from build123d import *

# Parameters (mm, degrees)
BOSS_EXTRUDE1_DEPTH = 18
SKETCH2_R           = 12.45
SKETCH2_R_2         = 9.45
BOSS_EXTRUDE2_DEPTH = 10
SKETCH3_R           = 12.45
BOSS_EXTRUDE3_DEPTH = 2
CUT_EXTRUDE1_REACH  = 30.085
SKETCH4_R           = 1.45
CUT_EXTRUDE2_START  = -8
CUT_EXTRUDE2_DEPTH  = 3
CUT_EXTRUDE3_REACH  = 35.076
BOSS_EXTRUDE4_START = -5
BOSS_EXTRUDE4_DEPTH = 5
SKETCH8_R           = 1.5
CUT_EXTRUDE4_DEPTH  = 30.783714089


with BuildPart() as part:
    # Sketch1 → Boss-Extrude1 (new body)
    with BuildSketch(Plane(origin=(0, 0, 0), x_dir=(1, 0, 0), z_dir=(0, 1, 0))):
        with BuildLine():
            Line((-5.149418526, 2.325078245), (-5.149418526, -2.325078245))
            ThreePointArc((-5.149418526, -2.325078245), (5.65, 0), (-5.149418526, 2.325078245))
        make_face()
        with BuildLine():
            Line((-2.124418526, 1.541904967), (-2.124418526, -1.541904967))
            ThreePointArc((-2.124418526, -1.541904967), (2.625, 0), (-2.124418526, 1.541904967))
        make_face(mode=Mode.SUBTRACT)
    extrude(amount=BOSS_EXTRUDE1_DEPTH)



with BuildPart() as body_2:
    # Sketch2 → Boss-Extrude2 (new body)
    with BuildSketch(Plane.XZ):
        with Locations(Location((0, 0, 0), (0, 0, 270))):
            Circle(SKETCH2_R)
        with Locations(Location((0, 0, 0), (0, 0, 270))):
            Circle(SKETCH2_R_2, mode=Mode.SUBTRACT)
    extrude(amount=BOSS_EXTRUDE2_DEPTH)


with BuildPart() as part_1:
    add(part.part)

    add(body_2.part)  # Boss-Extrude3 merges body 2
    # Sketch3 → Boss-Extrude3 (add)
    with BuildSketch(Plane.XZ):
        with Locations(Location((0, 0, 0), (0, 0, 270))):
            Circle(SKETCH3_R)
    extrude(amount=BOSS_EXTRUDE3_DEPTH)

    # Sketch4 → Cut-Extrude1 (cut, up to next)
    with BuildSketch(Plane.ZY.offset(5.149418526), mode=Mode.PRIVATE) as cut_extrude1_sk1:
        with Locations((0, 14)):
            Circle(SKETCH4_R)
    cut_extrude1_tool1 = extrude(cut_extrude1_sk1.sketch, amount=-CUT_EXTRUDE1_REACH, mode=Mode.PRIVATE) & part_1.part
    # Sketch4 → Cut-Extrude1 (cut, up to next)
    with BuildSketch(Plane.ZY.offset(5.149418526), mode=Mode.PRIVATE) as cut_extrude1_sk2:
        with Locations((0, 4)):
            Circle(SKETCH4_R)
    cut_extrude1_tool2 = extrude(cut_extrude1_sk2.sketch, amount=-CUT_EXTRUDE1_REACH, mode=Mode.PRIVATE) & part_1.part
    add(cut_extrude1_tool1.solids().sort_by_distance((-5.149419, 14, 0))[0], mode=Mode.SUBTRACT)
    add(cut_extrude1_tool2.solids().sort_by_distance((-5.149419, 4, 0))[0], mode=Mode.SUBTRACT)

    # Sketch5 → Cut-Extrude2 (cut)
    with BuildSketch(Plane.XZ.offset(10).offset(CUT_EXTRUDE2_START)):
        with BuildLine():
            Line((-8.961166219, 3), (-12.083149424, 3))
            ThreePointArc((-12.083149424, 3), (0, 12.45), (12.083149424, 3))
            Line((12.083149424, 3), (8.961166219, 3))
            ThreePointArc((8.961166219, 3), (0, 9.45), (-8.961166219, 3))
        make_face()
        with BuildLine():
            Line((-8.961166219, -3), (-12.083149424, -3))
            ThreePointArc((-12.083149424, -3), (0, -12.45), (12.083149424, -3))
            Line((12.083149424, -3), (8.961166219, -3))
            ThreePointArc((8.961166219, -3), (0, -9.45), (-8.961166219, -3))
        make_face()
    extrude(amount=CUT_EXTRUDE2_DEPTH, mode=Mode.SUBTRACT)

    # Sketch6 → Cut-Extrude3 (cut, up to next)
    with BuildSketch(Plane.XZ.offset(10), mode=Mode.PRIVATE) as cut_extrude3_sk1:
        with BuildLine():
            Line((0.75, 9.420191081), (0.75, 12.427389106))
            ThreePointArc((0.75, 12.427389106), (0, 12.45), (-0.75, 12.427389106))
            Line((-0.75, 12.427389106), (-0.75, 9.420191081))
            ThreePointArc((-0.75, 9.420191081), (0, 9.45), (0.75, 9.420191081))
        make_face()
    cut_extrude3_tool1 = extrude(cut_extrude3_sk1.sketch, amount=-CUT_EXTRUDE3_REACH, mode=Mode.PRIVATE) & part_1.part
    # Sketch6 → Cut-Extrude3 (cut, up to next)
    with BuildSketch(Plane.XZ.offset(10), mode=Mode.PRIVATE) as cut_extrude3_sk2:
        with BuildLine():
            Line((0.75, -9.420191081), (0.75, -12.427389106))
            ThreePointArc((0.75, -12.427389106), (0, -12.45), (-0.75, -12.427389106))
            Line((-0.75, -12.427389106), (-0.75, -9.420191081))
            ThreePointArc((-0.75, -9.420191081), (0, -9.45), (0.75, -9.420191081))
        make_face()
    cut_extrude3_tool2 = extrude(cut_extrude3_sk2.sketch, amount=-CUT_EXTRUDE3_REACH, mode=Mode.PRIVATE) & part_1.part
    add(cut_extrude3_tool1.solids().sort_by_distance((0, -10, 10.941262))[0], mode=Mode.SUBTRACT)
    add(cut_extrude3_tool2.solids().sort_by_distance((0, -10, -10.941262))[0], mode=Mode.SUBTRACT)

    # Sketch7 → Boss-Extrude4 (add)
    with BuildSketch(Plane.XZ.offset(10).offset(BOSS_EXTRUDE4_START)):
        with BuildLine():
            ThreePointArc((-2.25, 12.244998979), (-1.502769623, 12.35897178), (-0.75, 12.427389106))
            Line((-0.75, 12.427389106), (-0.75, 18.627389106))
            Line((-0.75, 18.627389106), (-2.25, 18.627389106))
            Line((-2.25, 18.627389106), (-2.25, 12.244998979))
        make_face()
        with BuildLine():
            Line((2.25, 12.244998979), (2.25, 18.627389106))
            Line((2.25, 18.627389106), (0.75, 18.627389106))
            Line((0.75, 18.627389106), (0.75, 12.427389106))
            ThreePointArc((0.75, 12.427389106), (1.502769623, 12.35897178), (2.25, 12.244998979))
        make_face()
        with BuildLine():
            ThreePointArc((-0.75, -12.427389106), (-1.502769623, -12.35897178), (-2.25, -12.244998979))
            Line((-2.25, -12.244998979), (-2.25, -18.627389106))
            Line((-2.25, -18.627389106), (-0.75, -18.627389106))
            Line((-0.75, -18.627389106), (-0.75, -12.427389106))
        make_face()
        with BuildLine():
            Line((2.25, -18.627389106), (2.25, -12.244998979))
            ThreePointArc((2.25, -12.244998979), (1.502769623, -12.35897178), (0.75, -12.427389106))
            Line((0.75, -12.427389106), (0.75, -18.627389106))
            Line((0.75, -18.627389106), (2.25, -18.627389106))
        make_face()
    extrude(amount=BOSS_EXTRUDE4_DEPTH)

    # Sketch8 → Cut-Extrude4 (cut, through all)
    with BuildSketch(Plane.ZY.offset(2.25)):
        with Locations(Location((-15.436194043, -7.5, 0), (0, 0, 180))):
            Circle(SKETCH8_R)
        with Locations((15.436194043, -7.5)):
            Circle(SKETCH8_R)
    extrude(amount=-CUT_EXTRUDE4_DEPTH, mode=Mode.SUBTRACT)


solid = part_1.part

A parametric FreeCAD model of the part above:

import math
import FreeCAD as App
import Part
import Sketcher
from FreeCAD import Vector
Q = App.Units.Quantity

doc = App.newDocument("Part")
body = doc.addObject("PartDesign::Body", "Body")

sketch1 = body.newObject("Sketcher::SketchObject", "Sketch")
sketch1.AttachmentSupport = (doc.getObject("XZ_Plane"), [""])
sketch1.MapMode = "FlatFace"
sketch1.addGeometry(Part.LineSegment(Vector(-5.1, -2.3, 0), Vector(-5.1, 2.3, 0)), False)
sketch1.addGeometry(Part.ArcOfCircle(Part.Circle(Vector(0, 0, 0), Vector(0, 0, 1), 5.7), math.radians(-156), math.radians(156)), False)
sketch1.addGeometry(Part.LineSegment(Vector(-2.1, 1.5, 0), Vector(-2.1, -1.5, 0)), False)
sketch1.addGeometry(Part.ArcOfCircle(Part.Circle(Vector(0, 0, 0), Vector(0, 0, 1), 2.6), math.radians(-144), math.radians(144)), False)
sketch1.addConstraint(Sketcher.Constraint("Coincident", 0, 1, 1, 1))
sketch1.addConstraint(Sketcher.Constraint("Coincident", 1, 2, 0, 2))
sketch1.addConstraint(Sketcher.Constraint("Coincident", 2, 1, 3, 2))
sketch1.addConstraint(Sketcher.Constraint("Coincident", 3, 1, 2, 2))
sketch1.addConstraint(Sketcher.Constraint("Vertical", 0))
sketch1.addConstraint(Sketcher.Constraint("Vertical", 2))
sketch1.addConstraint(Sketcher.Constraint("Coincident", 1, 3, -1, 1))
sketch1.addConstraint(Sketcher.Constraint("Coincident", 3, 3, -1, 1))
sketch1.addConstraint(Sketcher.Constraint("Radius", 1, Q("5.65 mm")))
sketch1.addConstraint(Sketcher.Constraint("Radius", 3, Q("2.625 mm")))
sketch1.addConstraint(Sketcher.Constraint("DistanceX", 1, 2, 2, 1, Q("3.025 mm")))
sketch1.addConstraint(Sketcher.Constraint("DistanceY", 2, 2, 2, 1, Q("3.08381 mm")))
pad1 = body.newObject("PartDesign::Pad", "Pad")
pad1.Profile = sketch1
pad1.Length = 18
pad1.Reversed = True
body2 = doc.addObject("PartDesign::Body", "Body001")

sketch2 = body2.newObject("Sketcher::SketchObject", "Sketch001")
sketch2.AttachmentSupport = (doc.getObject("XZ_Plane001"), [""])
sketch2.MapMode = "FlatFace"
sketch2.addGeometry(Part.Circle(Vector(0, 0, 0), Vector(0, 0, 1), 12), False)
sketch2.addGeometry(Part.Circle(Vector(0, 0, 0), Vector(0, 0, 1), 9), False)
sketch2.addConstraint(Sketcher.Constraint("Coincident", 0, 3, -1, 1))
sketch2.addConstraint(Sketcher.Constraint("Coincident", 1, 3, -1, 1))
sketch2.addConstraint(Sketcher.Constraint("Diameter", 0, Q("24.9 mm")))
sketch2.addConstraint(Sketcher.Constraint("Diameter", 1, Q("18.9 mm")))
pad2 = body2.newObject("PartDesign::Pad", "Pad001")
pad2.Profile = sketch2
pad2.Length = 10
body.AllowCompound = True
doc.recompute()

boolean = body.newObject("PartDesign::Boolean", "Boolean")
boolean.Type = "Fuse"
boolean.addObjects([body2])

sketch3 = body.newObject("Sketcher::SketchObject", "Sketch002")
sketch3.AttachmentSupport = (doc.getObject("XZ_Plane"), [""])
sketch3.MapMode = "FlatFace"
sketch3.addGeometry(Part.Circle(Vector(0, 0, 0), Vector(0, 0, 1), 12), False)
sketch3.addConstraint(Sketcher.Constraint("Coincident", 0, 3, -1, 1))
sketch3.addConstraint(Sketcher.Constraint("Diameter", 0, Q("24.9 mm")))
pad3 = body.newObject("PartDesign::Pad", "Pad002")
pad3.Profile = sketch3
pad3.Length = 2

sketch4 = body.newObject("Sketcher::SketchObject", "Sketch003")
sketch4.AttachmentSupport = (doc.getObject("YZ_Plane"), [""])
sketch4.MapMode = "FlatFace"
sketch4.AttachmentOffset = App.Placement(Vector(0, 0, -5.149419), App.Rotation())
sketch4.addGeometry(Part.Circle(Vector(14, 0, 0), Vector(0, 0, 1), 1.4), False)
sketch4.addConstraint(Sketcher.Constraint("PointOnObject", 0, 3, -1))
sketch4.addConstraint(Sketcher.Constraint("Diameter", 0, Q("2.9 mm")))
sketch4.addConstraint(Sketcher.Constraint("DistanceX", -1, 1, 0, 3, Q("14 mm")))
pocket1 = body.newObject("PartDesign::Pocket", "Pocket")
pocket1.Profile = sketch4
pocket1.Type = "UpToFirst"
pocket1.Reversed = True

sketch5 = body.newObject("Sketcher::SketchObject", "Sketch004")
sketch5.AttachmentSupport = (doc.getObject("YZ_Plane"), [""])
sketch5.MapMode = "FlatFace"
sketch5.AttachmentOffset = App.Placement(Vector(0, 0, -5.149419), App.Rotation())
sketch5.addGeometry(Part.Circle(Vector(4, 0, 0), Vector(0, 0, 1), 1.4), False)
sketch5.addConstraint(Sketcher.Constraint("PointOnObject", 0, 3, -1))
sketch5.addConstraint(Sketcher.Constraint("Diameter", 0, Q("2.9 mm")))
sketch5.addConstraint(Sketcher.Constraint("DistanceX", -1, 1, 0, 3, Q("4 mm")))
pocket2 = body.newObject("PartDesign::Pocket", "Pocket001")
pocket2.Profile = sketch5
pocket2.Type = "UpToFirst"
pocket2.Reversed = True

sketch6 = body.newObject("Sketcher::SketchObject", "Sketch005")
sketch6.AttachmentSupport = (doc.getObject("XZ_Plane"), [""])
sketch6.MapMode = "FlatFace"
sketch6.AttachmentOffset = App.Placement(Vector(0, 0, 2), App.Rotation())
sketch6.addGeometry(Part.LineSegment(Vector(-12.1, 3, 0), Vector(-9, 3, 0)), False)
sketch6.addGeometry(Part.ArcOfCircle(Part.Circle(Vector(0, 0, 0), Vector(0, 0, 1), 9.4), math.radians(19), math.radians(161)), False)
sketch6.addGeometry(Part.LineSegment(Vector(9, 3, 0), Vector(12.1, 3, 0)), False)
sketch6.addGeometry(Part.ArcOfCircle(Part.Circle(Vector(0, 0, 0), Vector(0, 0, 1), 12.4), math.radians(14), math.radians(166)), False)
sketch6.addGeometry(Part.LineSegment(Vector(-9, -3, 0), Vector(-12.1, -3, 0)), False)
sketch6.addGeometry(Part.ArcOfCircle(Part.Circle(Vector(0, 0, 0), Vector(0, 0, 1), 12.4), math.radians(-166), math.radians(-14)), False)
sketch6.addGeometry(Part.LineSegment(Vector(12.1, -3, 0), Vector(9, -3, 0)), False)
sketch6.addGeometry(Part.ArcOfCircle(Part.Circle(Vector(0, 0, 0), Vector(0, 0, 1), 9.4), math.radians(-161), math.radians(-19)), False)
sketch6.addConstraint(Sketcher.Constraint("Coincident", 0, 2, 1, 2))
sketch6.addConstraint(Sketcher.Constraint("Coincident", 1, 1, 2, 1))
sketch6.addConstraint(Sketcher.Constraint("Coincident", 2, 2, 3, 1))
sketch6.addConstraint(Sketcher.Constraint("Coincident", 3, 2, 0, 1))
sketch6.addConstraint(Sketcher.Constraint("Coincident", 4, 2, 5, 1))
sketch6.addConstraint(Sketcher.Constraint("Coincident", 5, 2, 6, 1))
sketch6.addConstraint(Sketcher.Constraint("Coincident", 6, 2, 7, 2))
sketch6.addConstraint(Sketcher.Constraint("Coincident", 7, 1, 4, 1))
sketch6.addConstraint(Sketcher.Constraint("Horizontal", 0))
sketch6.addConstraint(Sketcher.Constraint("Horizontal", 2))
sketch6.addConstraint(Sketcher.Constraint("Horizontal", 4))
sketch6.addConstraint(Sketcher.Constraint("Horizontal", 6))
sketch6.addConstraint(Sketcher.Constraint("Coincident", 1, 3, -1, 1))
sketch6.addConstraint(Sketcher.Constraint("Coincident", 3, 3, -1, 1))
sketch6.addConstraint(Sketcher.Constraint("Coincident", 5, 3, -1, 1))
sketch6.addConstraint(Sketcher.Constraint("Coincident", 7, 3, -1, 1))
sketch6.addConstraint(Sketcher.Constraint("Equal", 3, 5))
sketch6.addConstraint(Sketcher.Constraint("Equal", 1, 7))
sketch6.addConstraint(Sketcher.Constraint("Horizontal", 0, 2, 1, 1))
sketch6.addConstraint(Sketcher.Constraint("Horizontal", 4, 2, 5, 2))
sketch6.addConstraint(Sketcher.Constraint("Vertical", 3, 2, 4, 2))
sketch6.addConstraint(Sketcher.Constraint("Radius", 1, Q("9.45 mm")))
sketch6.addConstraint(Sketcher.Constraint("Radius", 3, Q("12.45 mm")))
sketch6.addConstraint(Sketcher.Constraint("DistanceY", -1, 1, 0, 2, Q("3 mm")))
pocket3 = body.newObject("PartDesign::Pocket", "Pocket002")
pocket3.Profile = sketch6
pocket3.Length = 3
pocket3.Reversed = True

sketch7 = body.newObject("Sketcher::SketchObject", "Sketch006")
sketch7.AttachmentSupport = (doc.getObject("XZ_Plane"), [""])
sketch7.MapMode = "FlatFace"
sketch7.AttachmentOffset = App.Placement(Vector(0, 0, 10), App.Rotation())
sketch7.addGeometry(Part.LineSegment(Vector(0.8, 9.4, 0), Vector(0.8, 12.4, 0)), False)
sketch7.addGeometry(Part.ArcOfCircle(Part.Circle(Vector(0, 0, 0), Vector(0, 0, 1), 12.4), math.radians(86.55), math.radians(93.45)), False)
sketch7.addGeometry(Part.LineSegment(Vector(-0.8, 12.4, 0), Vector(-0.8, 9.4, 0)), False)
sketch7.addGeometry(Part.ArcOfCircle(Part.Circle(Vector(0, 0, 0), Vector(0, 0, 1), 9.5), math.radians(85.45), math.radians(94.55)), False)
sketch7.addConstraint(Sketcher.Constraint("Coincident", 0, 2, 1, 1))
sketch7.addConstraint(Sketcher.Constraint("Coincident", 1, 2, 2, 1))
sketch7.addConstraint(Sketcher.Constraint("Coincident", 2, 2, 3, 2))
sketch7.addConstraint(Sketcher.Constraint("Coincident", 3, 1, 0, 1))
sketch7.addConstraint(Sketcher.Constraint("Vertical", 0))
sketch7.addConstraint(Sketcher.Constraint("Vertical", 2))
sketch7.addConstraint(Sketcher.Constraint("Coincident", 1, 3, -1, 1))
sketch7.addConstraint(Sketcher.Constraint("Coincident", 3, 3, -1, 1))
sketch7.addConstraint(Sketcher.Constraint("Horizontal", 0, 2, 1, 2))
sketch7.addConstraint(Sketcher.Constraint("Radius", 1, Q("12.45 mm")))
sketch7.addConstraint(Sketcher.Constraint("Radius", 3, Q("9.45 mm")))
sketch7.addConstraint(Sketcher.Constraint("DistanceX", 1, 2, 0, 2, Q("1.5 mm")))
pocket4 = body.newObject("PartDesign::Pocket", "Pocket003")
pocket4.Profile = sketch7
pocket4.Type = "UpToFirst"

sketch8 = body.newObject("Sketcher::SketchObject", "Sketch007")
sketch8.AttachmentSupport = (doc.getObject("XZ_Plane"), [""])
sketch8.MapMode = "FlatFace"
sketch8.AttachmentOffset = App.Placement(Vector(0, 0, 10), App.Rotation())
sketch8.addGeometry(Part.LineSegment(Vector(0.8, -12.4, 0), Vector(0.8, -9.4, 0)), False)
sketch8.addGeometry(Part.ArcOfCircle(Part.Circle(Vector(0, 0, 0), Vector(0, 0, 1), 9.5), math.radians(-94.55), math.radians(-85.45)), False)
sketch8.addGeometry(Part.LineSegment(Vector(-0.8, -9.4, 0), Vector(-0.8, -12.4, 0)), False)
sketch8.addGeometry(Part.ArcOfCircle(Part.Circle(Vector(0, 0, 0), Vector(0, 0, 1), 12.4), math.radians(-93.45), math.radians(-86.55)), False)
sketch8.addConstraint(Sketcher.Constraint("Coincident", 0, 2, 1, 2))
sketch8.addConstraint(Sketcher.Constraint("Coincident", 1, 1, 2, 1))
sketch8.addConstraint(Sketcher.Constraint("Coincident", 2, 2, 3, 1))
sketch8.addConstraint(Sketcher.Constraint("Coincident", 3, 2, 0, 1))
sketch8.addConstraint(Sketcher.Constraint("Vertical", 0))
sketch8.addConstraint(Sketcher.Constraint("Vertical", 2))
sketch8.addConstraint(Sketcher.Constraint("Coincident", 1, 3, -1, 1))
sketch8.addConstraint(Sketcher.Constraint("Coincident", 3, 3, -1, 1))
sketch8.addConstraint(Sketcher.Constraint("Horizontal", 0, 2, 1, 1))
sketch8.addConstraint(Sketcher.Constraint("Radius", 1, Q("9.45 mm")))
sketch8.addConstraint(Sketcher.Constraint("Radius", 3, Q("12.45 mm")))
sketch8.addConstraint(Sketcher.Constraint("DistanceX", 1, 1, 0, 2, Q("1.5 mm")))
pocket5 = body.newObject("PartDesign::Pocket", "Pocket004")
pocket5.Profile = sketch8
pocket5.Type = "UpToFirst"

sketch9 = body.newObject("Sketcher::SketchObject", "Sketch008")
sketch9.AttachmentSupport = (doc.getObject("XZ_Plane"), [""])
sketch9.MapMode = "FlatFace"
sketch9.AttachmentOffset = App.Placement(Vector(0, 0, 5), App.Rotation())
sketch9.addGeometry(Part.ArcOfCircle(Part.Circle(Vector(0, 0, 0), Vector(0, 0, 1), 12.4), math.radians(93.45), math.radians(100.41)), False)
sketch9.addGeometry(Part.LineSegment(Vector(-0.8, 12.4, 0), Vector(-0.8, 18.6, 0)), False)
sketch9.addGeometry(Part.LineSegment(Vector(-0.8, 18.6, 0), Vector(-2.2, 18.6, 0)), False)
sketch9.addGeometry(Part.LineSegment(Vector(-2.2, 18.6, 0), Vector(-2.2, 12.2, 0)), False)
sketch9.addGeometry(Part.LineSegment(Vector(2.2, 12.2, 0), Vector(2.2, 18.6, 0)), False)
sketch9.addGeometry(Part.LineSegment(Vector(2.2, 18.6, 0), Vector(0.8, 18.6, 0)), False)
sketch9.addGeometry(Part.LineSegment(Vector(0.8, 18.6, 0), Vector(0.8, 12.4, 0)), False)
sketch9.addGeometry(Part.ArcOfCircle(Part.Circle(Vector(0, 0, 0), Vector(0, 0, 1), 12.4), math.radians(79.59), math.radians(86.55)), False)
sketch9.addGeometry(Part.ArcOfCircle(Part.Circle(Vector(0, 0, 0), Vector(0, 0, 1), 12.4), math.radians(-100.41), math.radians(-93.45)), False)
sketch9.addGeometry(Part.LineSegment(Vector(-2.2, -12.2, 0), Vector(-2.2, -18.6, 0)), False)
sketch9.addGeometry(Part.LineSegment(Vector(-2.2, -18.6, 0), Vector(-0.8, -18.6, 0)), False)
sketch9.addGeometry(Part.LineSegment(Vector(-0.8, -18.6, 0), Vector(-0.8, -12.4, 0)), False)
sketch9.addGeometry(Part.LineSegment(Vector(2.2, -18.6, 0), Vector(2.2, -12.2, 0)), False)
sketch9.addGeometry(Part.ArcOfCircle(Part.Circle(Vector(0, 0, 0), Vector(0, 0, 1), 12.4), math.radians(-86.55), math.radians(-79.59)), False)
sketch9.addGeometry(Part.LineSegment(Vector(0.8, -12.4, 0), Vector(0.8, -18.6, 0)), False)
sketch9.addGeometry(Part.LineSegment(Vector(0.8, -18.6, 0), Vector(2.2, -18.6, 0)), False)
sketch9.addConstraint(Sketcher.Constraint("Coincident", 0, 1, 1, 1))
sketch9.addConstraint(Sketcher.Constraint("Coincident", 1, 2, 2, 1))
sketch9.addConstraint(Sketcher.Constraint("Coincident", 2, 2, 3, 1))
sketch9.addConstraint(Sketcher.Constraint("Coincident", 3, 2, 0, 2))
sketch9.addConstraint(Sketcher.Constraint("Coincident", 4, 2, 5, 1))
sketch9.addConstraint(Sketcher.Constraint("Coincident", 5, 2, 6, 1))
sketch9.addConstraint(Sketcher.Constraint("Coincident", 6, 2, 7, 2))
sketch9.addConstraint(Sketcher.Constraint("Coincident", 7, 1, 4, 1))
sketch9.addConstraint(Sketcher.Constraint("Coincident", 8, 1, 9, 1))
sketch9.addConstraint(Sketcher.Constraint("Coincident", 9, 2, 10, 1))
sketch9.addConstraint(Sketcher.Constraint("Coincident", 10, 2, 11, 1))
sketch9.addConstraint(Sketcher.Constraint("Coincident", 11, 2, 8, 2))
sketch9.addConstraint(Sketcher.Constraint("Coincident", 12, 2, 13, 2))
sketch9.addConstraint(Sketcher.Constraint("Coincident", 13, 1, 14, 1))
sketch9.addConstraint(Sketcher.Constraint("Coincident", 14, 2, 15, 1))
sketch9.addConstraint(Sketcher.Constraint("Coincident", 15, 2, 12, 1))
sketch9.addConstraint(Sketcher.Constraint("Vertical", 1))
sketch9.addConstraint(Sketcher.Constraint("Horizontal", 2))
sketch9.addConstraint(Sketcher.Constraint("Vertical", 3))
sketch9.addConstraint(Sketcher.Constraint("Vertical", 4))
sketch9.addConstraint(Sketcher.Constraint("Horizontal", 5))
sketch9.addConstraint(Sketcher.Constraint("Vertical", 6))
sketch9.addConstraint(Sketcher.Constraint("Vertical", 9))
sketch9.addConstraint(Sketcher.Constraint("Horizontal", 10))
sketch9.addConstraint(Sketcher.Constraint("Vertical", 11))
sketch9.addConstraint(Sketcher.Constraint("Vertical", 12))
sketch9.addConstraint(Sketcher.Constraint("Vertical", 14))
sketch9.addConstraint(Sketcher.Constraint("Horizontal", 15))
sketch9.addConstraint(Sketcher.Constraint("Coincident", 0, 3, -1, 1))
sketch9.addConstraint(Sketcher.Constraint("Coincident", 7, 3, -1, 1))
sketch9.addConstraint(Sketcher.Constraint("Coincident", 8, 3, -1, 1))
sketch9.addConstraint(Sketcher.Constraint("Coincident", 13, 3, -1, 1))
sketch9.addConstraint(Sketcher.Constraint("Equal", 0, 7))
sketch9.addConstraint(Sketcher.Constraint("Equal", 7, 8))
sketch9.addConstraint(Sketcher.Constraint("Equal", 8, 13))
sketch9.addConstraint(Sketcher.Constraint("Symmetric", 4, 2, 9, 2, -1, 1))
sketch9.addConstraint(Sketcher.Constraint("Symmetric", 1, 2, 14, 2, -1, 1))
sketch9.addConstraint(Sketcher.Constraint("Symmetric", 2, 2, 4, 2, -2))
sketch9.addConstraint(Sketcher.Constraint("Horizontal", 0, 1, 6, 2))
sketch9.addConstraint(Sketcher.Constraint("Horizontal", 8, 1, 12, 2))
sketch9.addConstraint(Sketcher.Constraint("Horizontal", 11, 2, 13, 1))
sketch9.addConstraint(Sketcher.Constraint("Radius", 0, Q("12.45 mm")))
sketch9.addConstraint(Sketcher.Constraint("DistanceX", 2, 2, 2, 1, Q("1.5 mm")))
sketch9.addConstraint(Sketcher.Constraint("DistanceY", 1, 1, 1, 2, Q("6.2 mm")))
sketch9.addConstraint(Sketcher.Constraint("DistanceX", 1, 2, 4, 2, Q("3 mm")))
pad4 = body.newObject("PartDesign::Pad", "Pad003")
pad4.Profile = sketch9
pad4.Length = 5

sketch10 = body.newObject("Sketcher::SketchObject", "Sketch009")
sketch10.AttachmentSupport = (doc.getObject("YZ_Plane"), [""])
sketch10.MapMode = "FlatFace"
sketch10.AttachmentOffset = App.Placement(Vector(0, 0, -2.25), App.Rotation())
sketch10.addGeometry(Part.Circle(Vector(-7.5, -15.4, 0), Vector(0, 0, 1), 1.5), False)
sketch10.addGeometry(Part.Circle(Vector(-7.5, 15.4, 0), Vector(0, 0, 1), 1.5), False)
sketch10.addConstraint(Sketcher.Constraint("Equal", 0, 1))
sketch10.addConstraint(Sketcher.Constraint("Symmetric", 0, 3, 1, 3, -1))
sketch10.addConstraint(Sketcher.Constraint("Diameter", 0, Q("3 mm")))
sketch10.addConstraint(Sketcher.Constraint("DistanceX", 0, 3, -1, 1, Q("7.5 mm")))
sketch10.addConstraint(Sketcher.Constraint("DistanceY", 0, 3, 1, 3, Q("30.872388 mm")))
pocket6 = body.newObject("PartDesign::Pocket", "Pocket005")
pocket6.Profile = sketch10
pocket6.Type = "ThroughAll"
pocket6.Reversed = True

doc.recompute()
